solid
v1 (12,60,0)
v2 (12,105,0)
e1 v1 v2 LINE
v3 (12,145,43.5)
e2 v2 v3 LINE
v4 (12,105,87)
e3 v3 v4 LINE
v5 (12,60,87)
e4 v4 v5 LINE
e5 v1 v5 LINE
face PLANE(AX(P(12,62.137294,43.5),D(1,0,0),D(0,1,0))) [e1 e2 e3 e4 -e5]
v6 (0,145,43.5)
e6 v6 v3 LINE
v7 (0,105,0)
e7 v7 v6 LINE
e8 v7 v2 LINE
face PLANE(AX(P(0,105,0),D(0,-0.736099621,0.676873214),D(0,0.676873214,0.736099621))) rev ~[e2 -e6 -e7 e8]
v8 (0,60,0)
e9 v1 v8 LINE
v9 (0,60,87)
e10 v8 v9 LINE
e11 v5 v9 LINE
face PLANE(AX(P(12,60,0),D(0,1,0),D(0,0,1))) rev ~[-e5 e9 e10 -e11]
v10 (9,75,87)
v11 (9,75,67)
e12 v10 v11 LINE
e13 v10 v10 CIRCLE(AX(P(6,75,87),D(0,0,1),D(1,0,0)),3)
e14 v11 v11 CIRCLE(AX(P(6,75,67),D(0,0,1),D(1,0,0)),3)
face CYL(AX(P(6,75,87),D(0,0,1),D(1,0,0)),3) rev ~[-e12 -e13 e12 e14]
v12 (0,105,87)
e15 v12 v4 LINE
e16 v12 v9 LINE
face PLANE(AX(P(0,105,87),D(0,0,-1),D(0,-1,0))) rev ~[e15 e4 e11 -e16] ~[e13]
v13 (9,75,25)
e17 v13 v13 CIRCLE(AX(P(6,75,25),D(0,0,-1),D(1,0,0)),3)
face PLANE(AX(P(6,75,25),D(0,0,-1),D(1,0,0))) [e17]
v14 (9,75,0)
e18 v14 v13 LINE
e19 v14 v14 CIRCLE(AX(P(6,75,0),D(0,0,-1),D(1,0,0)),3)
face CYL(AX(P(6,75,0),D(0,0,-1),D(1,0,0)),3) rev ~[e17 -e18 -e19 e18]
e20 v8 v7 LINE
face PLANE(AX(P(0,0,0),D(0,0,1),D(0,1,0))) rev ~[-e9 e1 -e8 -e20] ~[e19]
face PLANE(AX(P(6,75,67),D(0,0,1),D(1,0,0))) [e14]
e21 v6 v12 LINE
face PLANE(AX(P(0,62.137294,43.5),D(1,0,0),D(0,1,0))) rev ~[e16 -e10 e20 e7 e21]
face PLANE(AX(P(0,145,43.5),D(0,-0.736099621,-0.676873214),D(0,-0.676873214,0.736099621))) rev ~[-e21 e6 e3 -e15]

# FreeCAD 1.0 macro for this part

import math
import FreeCAD as App
import Part
import Sketcher
from FreeCAD import Vector


def add_polygon(sketch, points):
    """Adds a closed chain of lines whose ends are joined by coincident constraints."""
    first, n = sketch.GeometryCount, len(points)
    for a, b in zip(points, points[1:] + points[:1]):
        sketch.addGeometry(Part.LineSegment(App.Vector(*a, 0), App.Vector(*b, 0)), False)
    for i in range(n):
        sketch.addConstraint(Sketcher.Constraint("Coincident", first + i, 2, first + (i + 1) % n, 1))

doc = App.newDocument("Part")
body = doc.addObject("PartDesign::Body", "Body")

sketch1 = body.newObject("Sketcher::SketchObject", "Sketch")
sketch1.AttachmentSupport = (doc.getObject("YZ_Plane"), [""])
sketch1.MapMode = "FlatFace"
add_polygon(sketch1, [(0, 87), (0, 0), (105, 0), (145, 44), (105, 87)])
sketch1.addConstraint([
    Sketcher.Constraint("Vertical", 0),
    Sketcher.Constraint("Horizontal", 1),
    Sketcher.Constraint("Horizontal", 4),
    Sketcher.Constraint("Coincident", 0, 2, -1, 1),
    Sketcher.Constraint("Vertical", 1, 2, 3, 2),
    Sketcher.Constraint("Equal", 2, 3),
    Sketcher.Constraint("DistanceX", 1, 1, 1, 2, 105.0),
    Sketcher.Constraint("DistanceY", 0, 2, 0, 1, 87.0),
    Sketcher.Constraint("DistanceX", -1, 1, 2, 2, 145.0),
])
pad1 = body.newObject("PartDesign::Pad", "Pad")
pad1.Profile = sketch1
pad1.Length = 12

sketch2 = body.newObject("Sketcher::SketchObject", "Sketch001")
sketch2.AttachmentSupport = (doc.getObject("XY_Plane"), [""])
sketch2.MapMode = "FlatFace"
sketch2.AttachmentOffset = App.Placement(Vector(0, 0, 87), App.Rotation())
sketch2.addGeometry([
    Part.Circle(Vector(6, 15, 0), Vector(0, 0, 1), 3),
    Part.Circle(Vector(6, 45, 0), Vector(0, 0, 1), 3),
    Part.Circle(Vector(6, 75, 0), Vector(0, 0, 1), 3),
], False)
sketch2.addConstraint([
    Sketcher.Constraint("Equal", 0, 1),
    Sketcher.Constraint("Equal", 1, 2),
    Sketcher.Constraint("Vertical", 0, 3, 1, 3),
    Sketcher.Constraint("Vertical", 1, 3, 2, 3),
    Sketcher.Constraint("Diameter", 0, 6.0),
    Sketcher.Constraint("DistanceX", -1, 1, 0, 3, 6.0),
    Sketcher.Constraint("DistanceY", -1, 1, 0, 3, 15.0),
    Sketcher.Constraint("DistanceY", -1, 1, 1, 3, 45.0),
    Sketcher.Constraint("DistanceY", -1, 1, 2, 3, 75.0),
])
pocket1 = body.newObject("PartDesign::Pocket", "Pocket")
pocket1.Profile = sketch2
pocket1.Length = 20

sketch3 = body.newObject("Sketcher::SketchObject", "Sketch002")
sketch3.AttachmentSupport = (doc.getObject("XY_Plane"), [""])
sketch3.MapMode = "FlatFace"
sketch3.addGeometry([
    Part.ArcOfCircle(Part.Circle(Vector(6, 15, 0), Vector(0, 0, 1), 3), math.radians(-90), math.radians(0)),
    Part.ArcOfCircle(Part.Circle(Vector(6, 15, 0), Vector(0, 0, 1), 3), math.radians(90), math.radians(270)),
    Part.ArcOfCircle(Part.Circle(Vector(6, 15, 0), Vector(0, 0, 1), 3), math.radians(0), math.radians(90)),
    Part.ArcOfCircle(Part.Circle(Vector(6, 45, 0), Vector(0, 0, 1), 3), math.radians(-90), math.radians(0)),
    Part.ArcOfCircle(Part.Circle(Vector(6, 45, 0), Vector(0, 0, 1), 3), math.radians(0), math.radians(270)),
    Part.Circle(Vector(6, 75, 0), Vector(0, 0, 1), 3),
], False)
sketch3.addConstraint([
    Sketcher.Constraint("Tangent", 0, 1, 1, 2),
    Sketcher.Constraint("Tangent", 1, 1, 2, 2),
    Sketcher.Constraint("Tangent", 2, 1, 0, 2),
    Sketcher.Constraint("Tangent", 3, 1, 4, 2),
    Sketcher.Constraint("Coincident", 4, 1, 3, 2),
    Sketcher.Constraint("Equal", 2, 3),
    Sketcher.Constraint("Equal", 4, 5),
    Sketcher.Constraint("Horizontal", 1, 3, 2, 1),
    Sketcher.Constraint("Horizontal", 3, 3, 4, 1),
    Sketcher.Constraint("Vertical", 2, 3, 3, 3),
    Sketcher.Constraint("Vertical", 4, 3, 5, 3),
    Sketcher.Constraint("Vertical", 5, 3, 0, 1),
    Sketcher.Constraint("Vertical", 0, 1, 1, 1),
    Sketcher.Constraint("Vertical", 1, 1, 3, 1),
    Sketcher.Constraint("Diameter", 5, 6.0),
    Sketcher.Constraint("DistanceX", -1, 1, 0, 3, 5.999999),
    Sketcher.Constraint("DistanceY", -1, 1, 0, 3, 15.000001),
    Sketcher.Constraint("DistanceY", -1, 1, 3, 3, 45.000001),
    Sketcher.Constraint("DistanceY", -1, 1, 5, 3, 75.0),
])
pocket2 = body.newObject("PartDesign::Pocket", "Pocket001")
pocket2.Profile = sketch3
pocket2.Length = 25
pocket2.Reversed = True

sketch4 = body.newObject("Sketcher::SketchObject", "Sketch003")
sketch4.AttachmentSupport = (doc.getObject("YZ_Plane"), [""])
sketch4.MapMode = "FlatFace"
sketch4.addGeometry([
    Part.Circle(Vector(6, 77, 0), Vector(0, 0, 1), 2),
    Part.Circle(Vector(6, 10, 0), Vector(0, 0, 1), 2),
], False)
sketch4.addConstraint([
    Sketcher.Constraint("Equal", 0, 1),
    Sketcher.Constraint("Vertical", 0, 3, 1, 3),
    Sketcher.Constraint("Diameter", 0, 4.0),
    Sketcher.Constraint("DistanceX", -1, 1, 0, 3, 6.0),
    Sketcher.Constraint("DistanceY", -1, 1, 0, 3, 77.0),
    Sketcher.Constraint("DistanceY", -1, 1, 1, 3, 10.0),
])
pocket3 = body.newObject("PartDesign::Pocket", "Pocket002")
pocket3.Profile = sketch4
pocket3.Length = 25
pocket3.Reversed = True

sketch5 = body.newObject("Sketcher::SketchObject", "Sketch004")
sketch5.AttachmentSupport = (doc.getObject("YZ_Plane"), [""])
sketch5.MapMode = "FlatFace"
sketch5.AttachmentOffset = App.Placement(Vector(0, 0, 12), App.Rotation())
add_polygon(sketch5, [(0, 87), (0, 0), (60, 0), (60, 87)])
sketch5.addConstraint([
    Sketcher.Constraint("Vertical", 0),
    Sketcher.Constraint("Horizontal", 1),
    Sketcher.Constraint("Vertical", 2),
    Sketcher.Constraint("Horizontal", 3),
    Sketcher.Constraint("Coincident", 0, 2, -1, 1),
    Sketcher.Constraint("DistanceX", 1, 1, 1, 2, 60.0),
    Sketcher.Constraint("DistanceY", 0, 2, 0, 1, 87.0),
])
pocket4 = body.newObject("PartDesign::Pocket", "Pocket003")
pocket4.Profile = sketch5
pocket4.Length = 25

doc.recompute()
